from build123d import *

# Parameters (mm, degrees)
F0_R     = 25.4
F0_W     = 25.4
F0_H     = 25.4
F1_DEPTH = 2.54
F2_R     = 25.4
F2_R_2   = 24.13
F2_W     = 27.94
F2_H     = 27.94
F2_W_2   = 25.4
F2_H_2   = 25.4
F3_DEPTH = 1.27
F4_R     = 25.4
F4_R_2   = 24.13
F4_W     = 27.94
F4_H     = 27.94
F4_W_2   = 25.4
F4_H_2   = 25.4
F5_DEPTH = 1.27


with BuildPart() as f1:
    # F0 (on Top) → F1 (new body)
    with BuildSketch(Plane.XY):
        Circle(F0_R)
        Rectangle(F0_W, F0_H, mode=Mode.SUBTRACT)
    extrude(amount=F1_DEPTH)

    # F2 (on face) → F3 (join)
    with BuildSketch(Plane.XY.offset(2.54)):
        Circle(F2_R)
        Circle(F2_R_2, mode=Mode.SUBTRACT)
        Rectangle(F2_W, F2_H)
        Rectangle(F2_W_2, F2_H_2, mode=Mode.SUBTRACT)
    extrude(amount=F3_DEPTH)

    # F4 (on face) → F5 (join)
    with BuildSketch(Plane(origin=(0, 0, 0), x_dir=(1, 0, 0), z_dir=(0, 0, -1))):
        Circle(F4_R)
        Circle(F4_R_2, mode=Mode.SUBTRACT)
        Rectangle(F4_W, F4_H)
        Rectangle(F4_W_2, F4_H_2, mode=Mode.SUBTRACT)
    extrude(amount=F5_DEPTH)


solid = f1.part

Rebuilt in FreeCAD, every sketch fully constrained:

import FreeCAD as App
import Part
import Sketcher
from FreeCAD import Vector
Q = App.Units.Quantity


def add_polygon(sketch, points):
    """Adds a closed chain of lines whose ends are joined by coincident constraints."""
    first, n = sketch.GeometryCount, len(points)
    for a, b in zip(points, points[1:] + points[:1]):
        sketch.addGeometry(Part.LineSegment(App.Vector(*a, 0), App.Vector(*b, 0)), False)
    for i in range(n):
        sketch.addConstraint(Sketcher.Constraint("Coincident", first + i, 2, first + (i + 1) % n, 1))

doc = App.newDocument("Part")
body = doc.addObject("PartDesign::Body", "Body")

sketch1 = doc.addObject("Sketcher::SketchObject", "Sketch")
body.addObject(sketch1)
sketch1.AttachmentSupport = (doc.XY_Plane, [""])
sketch1.MapMode = "FlatFace"
sketch1.addGeometry(Part.Circle(Vector(0, 0, 0), Vector(0, 0, 1), 25), False)
add_polygon(sketch1, [(13, -13), (-13, -13), (-13, 13), (13, 13)])
sketch1.addConstraint([
    Sketcher.Constraint("Horizontal", 1),
    Sketcher.Constraint("Vertical", 2),
    Sketcher.Constraint("Horizontal", 3),
    Sketcher.Constraint("Vertical", 4),
    Sketcher.Constraint("Coincident", 0, 3, -1, 1),
    Sketcher.Constraint("Symmetric", 1, 2, 3, 2, -1, 1),
    Sketcher.Constraint("Equal", 3, 2),
    Sketcher.Constraint("Diameter", 0, Q("2 in")),
    Sketcher.Constraint("DistanceX", 1, 2, 1, 1, Q("1 in")),
])
pad1 = doc.addObject("PartDesign::Pad", "Pad")
body.addObject(pad1)
pad1.Profile = sketch1
pad1.Length = Q("0.1 in")

sketch2 = doc.addObject("Sketcher::SketchObject", "Sketch001")
body.addObject(sketch2)
sketch2.AttachmentSupport = (doc.XY_Plane, [""])
sketch2.MapMode = "FlatFace"
sketch2.AttachmentOffset = App.Placement(Vector(0, 0, 0.1 * 25.4), App.Rotation())
sketch2.addGeometry(Part.Circle(Vector(0, 0, 0), Vector(0, 0, 1), 25), False)
sketch2.addGeometry(Part.Circle(Vector(0, 0, 0), Vector(0, 0, 1), 24), False)
add_polygon(sketch2, [(-14, 14), (-14, -14), (14, -14), (14, 14)])
add_polygon(sketch2, [(13, -13), (-13, -13), (-13, 13), (13, 13)])
sketch2.addConstraint([
    Sketcher.Constraint("Vertical", 2),
    Sketcher.Constraint("Horizontal", 3),
    Sketcher.Constraint("Vertical", 4),
    Sketcher.Constraint("Horizontal", 5),
    Sketcher.Constraint("Horizontal", 6),
    Sketcher.Constraint("Vertical", 7),
    Sketcher.Constraint("Horizontal", 8),
    Sketcher.Constraint("Vertical", 9),
    Sketcher.Constraint("Coincident", 0, 3, -1, 1),
    Sketcher.Constraint("Coincident", 1, 3, -1, 1),
    Sketcher.Constraint("Symmetric", 2, 2, 4, 2, -1, 1),
    Sketcher.Constraint("Symmetric", 6, 2, 8, 2, -1, 1),
    Sketcher.Constraint("Equal", 5, 2),
    Sketcher.Constraint("Equal", 8, 7),
    Sketcher.Constraint("Diameter", 0, Q("2 in")),
    Sketcher.Constraint("Diameter", 1, Q("1.9 in")),
    Sketcher.Constraint("DistanceX", 6, 2, 6, 1, Q("1 in")),
    Sketcher.Constraint("DistanceX", 3, 1, 3, 2, Q("1.1 in")),
])
pad2 = doc.addObject("PartDesign::Pad", "Pad001")
body.addObject(pad2)
pad2.Profile = sketch2
pad2.Length = Q("0.05 in")

sketch3 = doc.addObject("Sketcher::SketchObject", "Sketch002")
body.addObject(sketch3)
sketch3.AttachmentSupport = (doc.XY_Plane, [""])
sketch3.MapMode = "FlatFace"
sketch3.addGeometry(Part.Circle(Vector(0, 0, 0), Vector(0, 0, 1), 25), False)
sketch3.addGeometry(Part.Circle(Vector(0, 0, 0), Vector(0, 0, 1), 24), False)
add_polygon(sketch3, [(-14, -14), (-14, 14), (14, 14), (14, -14)])
add_polygon(sketch3, [(13, 13), (-13, 13), (-13, -13), (13, -13)])
sketch3.addConstraint([
    Sketcher.Constraint("Vertical", 2),
    Sketcher.Constraint("Horizontal", 3),
    Sketcher.Constraint("Vertical", 4),
    Sketcher.Constraint("Horizontal", 5),
    Sketcher.Constraint("Horizontal", 6),
    Sketcher.Constraint("Vertical", 7),
    Sketcher.Constraint("Horizontal", 8),
    Sketcher.Constraint("Vertical", 9),
    Sketcher.Constraint("Coincident", 0, 3, -1, 1),
    Sketcher.Constraint("Coincident", 1, 3, -1, 1),
    Sketcher.Constraint("Symmetric", 2, 2, 4, 2, -1, 1),
    Sketcher.Constraint("Symmetric", 6, 2, 8, 2, -1, 1),
    Sketcher.Constraint("Equal", 5, 2),
    Sketcher.Constraint("Equal", 8, 7),
    Sketcher.Constraint("Diameter", 0, Q("2 in")),
    Sketcher.Constraint("Diameter", 1, Q("1.9 in")),
    Sketcher.Constraint("DistanceX", 6, 2, 6, 1, Q("1 in")),
    Sketcher.Constraint("DistanceX", 3, 1, 3, 2, Q("1.1 in")),
])
pad3 = doc.addObject("PartDesign::Pad", "Pad002")
body.addObject(pad3)
pad3.Profile = sketch3
pad3.Length = Q("0.05 in")
pad3.Reversed = True

doc.recompute()
